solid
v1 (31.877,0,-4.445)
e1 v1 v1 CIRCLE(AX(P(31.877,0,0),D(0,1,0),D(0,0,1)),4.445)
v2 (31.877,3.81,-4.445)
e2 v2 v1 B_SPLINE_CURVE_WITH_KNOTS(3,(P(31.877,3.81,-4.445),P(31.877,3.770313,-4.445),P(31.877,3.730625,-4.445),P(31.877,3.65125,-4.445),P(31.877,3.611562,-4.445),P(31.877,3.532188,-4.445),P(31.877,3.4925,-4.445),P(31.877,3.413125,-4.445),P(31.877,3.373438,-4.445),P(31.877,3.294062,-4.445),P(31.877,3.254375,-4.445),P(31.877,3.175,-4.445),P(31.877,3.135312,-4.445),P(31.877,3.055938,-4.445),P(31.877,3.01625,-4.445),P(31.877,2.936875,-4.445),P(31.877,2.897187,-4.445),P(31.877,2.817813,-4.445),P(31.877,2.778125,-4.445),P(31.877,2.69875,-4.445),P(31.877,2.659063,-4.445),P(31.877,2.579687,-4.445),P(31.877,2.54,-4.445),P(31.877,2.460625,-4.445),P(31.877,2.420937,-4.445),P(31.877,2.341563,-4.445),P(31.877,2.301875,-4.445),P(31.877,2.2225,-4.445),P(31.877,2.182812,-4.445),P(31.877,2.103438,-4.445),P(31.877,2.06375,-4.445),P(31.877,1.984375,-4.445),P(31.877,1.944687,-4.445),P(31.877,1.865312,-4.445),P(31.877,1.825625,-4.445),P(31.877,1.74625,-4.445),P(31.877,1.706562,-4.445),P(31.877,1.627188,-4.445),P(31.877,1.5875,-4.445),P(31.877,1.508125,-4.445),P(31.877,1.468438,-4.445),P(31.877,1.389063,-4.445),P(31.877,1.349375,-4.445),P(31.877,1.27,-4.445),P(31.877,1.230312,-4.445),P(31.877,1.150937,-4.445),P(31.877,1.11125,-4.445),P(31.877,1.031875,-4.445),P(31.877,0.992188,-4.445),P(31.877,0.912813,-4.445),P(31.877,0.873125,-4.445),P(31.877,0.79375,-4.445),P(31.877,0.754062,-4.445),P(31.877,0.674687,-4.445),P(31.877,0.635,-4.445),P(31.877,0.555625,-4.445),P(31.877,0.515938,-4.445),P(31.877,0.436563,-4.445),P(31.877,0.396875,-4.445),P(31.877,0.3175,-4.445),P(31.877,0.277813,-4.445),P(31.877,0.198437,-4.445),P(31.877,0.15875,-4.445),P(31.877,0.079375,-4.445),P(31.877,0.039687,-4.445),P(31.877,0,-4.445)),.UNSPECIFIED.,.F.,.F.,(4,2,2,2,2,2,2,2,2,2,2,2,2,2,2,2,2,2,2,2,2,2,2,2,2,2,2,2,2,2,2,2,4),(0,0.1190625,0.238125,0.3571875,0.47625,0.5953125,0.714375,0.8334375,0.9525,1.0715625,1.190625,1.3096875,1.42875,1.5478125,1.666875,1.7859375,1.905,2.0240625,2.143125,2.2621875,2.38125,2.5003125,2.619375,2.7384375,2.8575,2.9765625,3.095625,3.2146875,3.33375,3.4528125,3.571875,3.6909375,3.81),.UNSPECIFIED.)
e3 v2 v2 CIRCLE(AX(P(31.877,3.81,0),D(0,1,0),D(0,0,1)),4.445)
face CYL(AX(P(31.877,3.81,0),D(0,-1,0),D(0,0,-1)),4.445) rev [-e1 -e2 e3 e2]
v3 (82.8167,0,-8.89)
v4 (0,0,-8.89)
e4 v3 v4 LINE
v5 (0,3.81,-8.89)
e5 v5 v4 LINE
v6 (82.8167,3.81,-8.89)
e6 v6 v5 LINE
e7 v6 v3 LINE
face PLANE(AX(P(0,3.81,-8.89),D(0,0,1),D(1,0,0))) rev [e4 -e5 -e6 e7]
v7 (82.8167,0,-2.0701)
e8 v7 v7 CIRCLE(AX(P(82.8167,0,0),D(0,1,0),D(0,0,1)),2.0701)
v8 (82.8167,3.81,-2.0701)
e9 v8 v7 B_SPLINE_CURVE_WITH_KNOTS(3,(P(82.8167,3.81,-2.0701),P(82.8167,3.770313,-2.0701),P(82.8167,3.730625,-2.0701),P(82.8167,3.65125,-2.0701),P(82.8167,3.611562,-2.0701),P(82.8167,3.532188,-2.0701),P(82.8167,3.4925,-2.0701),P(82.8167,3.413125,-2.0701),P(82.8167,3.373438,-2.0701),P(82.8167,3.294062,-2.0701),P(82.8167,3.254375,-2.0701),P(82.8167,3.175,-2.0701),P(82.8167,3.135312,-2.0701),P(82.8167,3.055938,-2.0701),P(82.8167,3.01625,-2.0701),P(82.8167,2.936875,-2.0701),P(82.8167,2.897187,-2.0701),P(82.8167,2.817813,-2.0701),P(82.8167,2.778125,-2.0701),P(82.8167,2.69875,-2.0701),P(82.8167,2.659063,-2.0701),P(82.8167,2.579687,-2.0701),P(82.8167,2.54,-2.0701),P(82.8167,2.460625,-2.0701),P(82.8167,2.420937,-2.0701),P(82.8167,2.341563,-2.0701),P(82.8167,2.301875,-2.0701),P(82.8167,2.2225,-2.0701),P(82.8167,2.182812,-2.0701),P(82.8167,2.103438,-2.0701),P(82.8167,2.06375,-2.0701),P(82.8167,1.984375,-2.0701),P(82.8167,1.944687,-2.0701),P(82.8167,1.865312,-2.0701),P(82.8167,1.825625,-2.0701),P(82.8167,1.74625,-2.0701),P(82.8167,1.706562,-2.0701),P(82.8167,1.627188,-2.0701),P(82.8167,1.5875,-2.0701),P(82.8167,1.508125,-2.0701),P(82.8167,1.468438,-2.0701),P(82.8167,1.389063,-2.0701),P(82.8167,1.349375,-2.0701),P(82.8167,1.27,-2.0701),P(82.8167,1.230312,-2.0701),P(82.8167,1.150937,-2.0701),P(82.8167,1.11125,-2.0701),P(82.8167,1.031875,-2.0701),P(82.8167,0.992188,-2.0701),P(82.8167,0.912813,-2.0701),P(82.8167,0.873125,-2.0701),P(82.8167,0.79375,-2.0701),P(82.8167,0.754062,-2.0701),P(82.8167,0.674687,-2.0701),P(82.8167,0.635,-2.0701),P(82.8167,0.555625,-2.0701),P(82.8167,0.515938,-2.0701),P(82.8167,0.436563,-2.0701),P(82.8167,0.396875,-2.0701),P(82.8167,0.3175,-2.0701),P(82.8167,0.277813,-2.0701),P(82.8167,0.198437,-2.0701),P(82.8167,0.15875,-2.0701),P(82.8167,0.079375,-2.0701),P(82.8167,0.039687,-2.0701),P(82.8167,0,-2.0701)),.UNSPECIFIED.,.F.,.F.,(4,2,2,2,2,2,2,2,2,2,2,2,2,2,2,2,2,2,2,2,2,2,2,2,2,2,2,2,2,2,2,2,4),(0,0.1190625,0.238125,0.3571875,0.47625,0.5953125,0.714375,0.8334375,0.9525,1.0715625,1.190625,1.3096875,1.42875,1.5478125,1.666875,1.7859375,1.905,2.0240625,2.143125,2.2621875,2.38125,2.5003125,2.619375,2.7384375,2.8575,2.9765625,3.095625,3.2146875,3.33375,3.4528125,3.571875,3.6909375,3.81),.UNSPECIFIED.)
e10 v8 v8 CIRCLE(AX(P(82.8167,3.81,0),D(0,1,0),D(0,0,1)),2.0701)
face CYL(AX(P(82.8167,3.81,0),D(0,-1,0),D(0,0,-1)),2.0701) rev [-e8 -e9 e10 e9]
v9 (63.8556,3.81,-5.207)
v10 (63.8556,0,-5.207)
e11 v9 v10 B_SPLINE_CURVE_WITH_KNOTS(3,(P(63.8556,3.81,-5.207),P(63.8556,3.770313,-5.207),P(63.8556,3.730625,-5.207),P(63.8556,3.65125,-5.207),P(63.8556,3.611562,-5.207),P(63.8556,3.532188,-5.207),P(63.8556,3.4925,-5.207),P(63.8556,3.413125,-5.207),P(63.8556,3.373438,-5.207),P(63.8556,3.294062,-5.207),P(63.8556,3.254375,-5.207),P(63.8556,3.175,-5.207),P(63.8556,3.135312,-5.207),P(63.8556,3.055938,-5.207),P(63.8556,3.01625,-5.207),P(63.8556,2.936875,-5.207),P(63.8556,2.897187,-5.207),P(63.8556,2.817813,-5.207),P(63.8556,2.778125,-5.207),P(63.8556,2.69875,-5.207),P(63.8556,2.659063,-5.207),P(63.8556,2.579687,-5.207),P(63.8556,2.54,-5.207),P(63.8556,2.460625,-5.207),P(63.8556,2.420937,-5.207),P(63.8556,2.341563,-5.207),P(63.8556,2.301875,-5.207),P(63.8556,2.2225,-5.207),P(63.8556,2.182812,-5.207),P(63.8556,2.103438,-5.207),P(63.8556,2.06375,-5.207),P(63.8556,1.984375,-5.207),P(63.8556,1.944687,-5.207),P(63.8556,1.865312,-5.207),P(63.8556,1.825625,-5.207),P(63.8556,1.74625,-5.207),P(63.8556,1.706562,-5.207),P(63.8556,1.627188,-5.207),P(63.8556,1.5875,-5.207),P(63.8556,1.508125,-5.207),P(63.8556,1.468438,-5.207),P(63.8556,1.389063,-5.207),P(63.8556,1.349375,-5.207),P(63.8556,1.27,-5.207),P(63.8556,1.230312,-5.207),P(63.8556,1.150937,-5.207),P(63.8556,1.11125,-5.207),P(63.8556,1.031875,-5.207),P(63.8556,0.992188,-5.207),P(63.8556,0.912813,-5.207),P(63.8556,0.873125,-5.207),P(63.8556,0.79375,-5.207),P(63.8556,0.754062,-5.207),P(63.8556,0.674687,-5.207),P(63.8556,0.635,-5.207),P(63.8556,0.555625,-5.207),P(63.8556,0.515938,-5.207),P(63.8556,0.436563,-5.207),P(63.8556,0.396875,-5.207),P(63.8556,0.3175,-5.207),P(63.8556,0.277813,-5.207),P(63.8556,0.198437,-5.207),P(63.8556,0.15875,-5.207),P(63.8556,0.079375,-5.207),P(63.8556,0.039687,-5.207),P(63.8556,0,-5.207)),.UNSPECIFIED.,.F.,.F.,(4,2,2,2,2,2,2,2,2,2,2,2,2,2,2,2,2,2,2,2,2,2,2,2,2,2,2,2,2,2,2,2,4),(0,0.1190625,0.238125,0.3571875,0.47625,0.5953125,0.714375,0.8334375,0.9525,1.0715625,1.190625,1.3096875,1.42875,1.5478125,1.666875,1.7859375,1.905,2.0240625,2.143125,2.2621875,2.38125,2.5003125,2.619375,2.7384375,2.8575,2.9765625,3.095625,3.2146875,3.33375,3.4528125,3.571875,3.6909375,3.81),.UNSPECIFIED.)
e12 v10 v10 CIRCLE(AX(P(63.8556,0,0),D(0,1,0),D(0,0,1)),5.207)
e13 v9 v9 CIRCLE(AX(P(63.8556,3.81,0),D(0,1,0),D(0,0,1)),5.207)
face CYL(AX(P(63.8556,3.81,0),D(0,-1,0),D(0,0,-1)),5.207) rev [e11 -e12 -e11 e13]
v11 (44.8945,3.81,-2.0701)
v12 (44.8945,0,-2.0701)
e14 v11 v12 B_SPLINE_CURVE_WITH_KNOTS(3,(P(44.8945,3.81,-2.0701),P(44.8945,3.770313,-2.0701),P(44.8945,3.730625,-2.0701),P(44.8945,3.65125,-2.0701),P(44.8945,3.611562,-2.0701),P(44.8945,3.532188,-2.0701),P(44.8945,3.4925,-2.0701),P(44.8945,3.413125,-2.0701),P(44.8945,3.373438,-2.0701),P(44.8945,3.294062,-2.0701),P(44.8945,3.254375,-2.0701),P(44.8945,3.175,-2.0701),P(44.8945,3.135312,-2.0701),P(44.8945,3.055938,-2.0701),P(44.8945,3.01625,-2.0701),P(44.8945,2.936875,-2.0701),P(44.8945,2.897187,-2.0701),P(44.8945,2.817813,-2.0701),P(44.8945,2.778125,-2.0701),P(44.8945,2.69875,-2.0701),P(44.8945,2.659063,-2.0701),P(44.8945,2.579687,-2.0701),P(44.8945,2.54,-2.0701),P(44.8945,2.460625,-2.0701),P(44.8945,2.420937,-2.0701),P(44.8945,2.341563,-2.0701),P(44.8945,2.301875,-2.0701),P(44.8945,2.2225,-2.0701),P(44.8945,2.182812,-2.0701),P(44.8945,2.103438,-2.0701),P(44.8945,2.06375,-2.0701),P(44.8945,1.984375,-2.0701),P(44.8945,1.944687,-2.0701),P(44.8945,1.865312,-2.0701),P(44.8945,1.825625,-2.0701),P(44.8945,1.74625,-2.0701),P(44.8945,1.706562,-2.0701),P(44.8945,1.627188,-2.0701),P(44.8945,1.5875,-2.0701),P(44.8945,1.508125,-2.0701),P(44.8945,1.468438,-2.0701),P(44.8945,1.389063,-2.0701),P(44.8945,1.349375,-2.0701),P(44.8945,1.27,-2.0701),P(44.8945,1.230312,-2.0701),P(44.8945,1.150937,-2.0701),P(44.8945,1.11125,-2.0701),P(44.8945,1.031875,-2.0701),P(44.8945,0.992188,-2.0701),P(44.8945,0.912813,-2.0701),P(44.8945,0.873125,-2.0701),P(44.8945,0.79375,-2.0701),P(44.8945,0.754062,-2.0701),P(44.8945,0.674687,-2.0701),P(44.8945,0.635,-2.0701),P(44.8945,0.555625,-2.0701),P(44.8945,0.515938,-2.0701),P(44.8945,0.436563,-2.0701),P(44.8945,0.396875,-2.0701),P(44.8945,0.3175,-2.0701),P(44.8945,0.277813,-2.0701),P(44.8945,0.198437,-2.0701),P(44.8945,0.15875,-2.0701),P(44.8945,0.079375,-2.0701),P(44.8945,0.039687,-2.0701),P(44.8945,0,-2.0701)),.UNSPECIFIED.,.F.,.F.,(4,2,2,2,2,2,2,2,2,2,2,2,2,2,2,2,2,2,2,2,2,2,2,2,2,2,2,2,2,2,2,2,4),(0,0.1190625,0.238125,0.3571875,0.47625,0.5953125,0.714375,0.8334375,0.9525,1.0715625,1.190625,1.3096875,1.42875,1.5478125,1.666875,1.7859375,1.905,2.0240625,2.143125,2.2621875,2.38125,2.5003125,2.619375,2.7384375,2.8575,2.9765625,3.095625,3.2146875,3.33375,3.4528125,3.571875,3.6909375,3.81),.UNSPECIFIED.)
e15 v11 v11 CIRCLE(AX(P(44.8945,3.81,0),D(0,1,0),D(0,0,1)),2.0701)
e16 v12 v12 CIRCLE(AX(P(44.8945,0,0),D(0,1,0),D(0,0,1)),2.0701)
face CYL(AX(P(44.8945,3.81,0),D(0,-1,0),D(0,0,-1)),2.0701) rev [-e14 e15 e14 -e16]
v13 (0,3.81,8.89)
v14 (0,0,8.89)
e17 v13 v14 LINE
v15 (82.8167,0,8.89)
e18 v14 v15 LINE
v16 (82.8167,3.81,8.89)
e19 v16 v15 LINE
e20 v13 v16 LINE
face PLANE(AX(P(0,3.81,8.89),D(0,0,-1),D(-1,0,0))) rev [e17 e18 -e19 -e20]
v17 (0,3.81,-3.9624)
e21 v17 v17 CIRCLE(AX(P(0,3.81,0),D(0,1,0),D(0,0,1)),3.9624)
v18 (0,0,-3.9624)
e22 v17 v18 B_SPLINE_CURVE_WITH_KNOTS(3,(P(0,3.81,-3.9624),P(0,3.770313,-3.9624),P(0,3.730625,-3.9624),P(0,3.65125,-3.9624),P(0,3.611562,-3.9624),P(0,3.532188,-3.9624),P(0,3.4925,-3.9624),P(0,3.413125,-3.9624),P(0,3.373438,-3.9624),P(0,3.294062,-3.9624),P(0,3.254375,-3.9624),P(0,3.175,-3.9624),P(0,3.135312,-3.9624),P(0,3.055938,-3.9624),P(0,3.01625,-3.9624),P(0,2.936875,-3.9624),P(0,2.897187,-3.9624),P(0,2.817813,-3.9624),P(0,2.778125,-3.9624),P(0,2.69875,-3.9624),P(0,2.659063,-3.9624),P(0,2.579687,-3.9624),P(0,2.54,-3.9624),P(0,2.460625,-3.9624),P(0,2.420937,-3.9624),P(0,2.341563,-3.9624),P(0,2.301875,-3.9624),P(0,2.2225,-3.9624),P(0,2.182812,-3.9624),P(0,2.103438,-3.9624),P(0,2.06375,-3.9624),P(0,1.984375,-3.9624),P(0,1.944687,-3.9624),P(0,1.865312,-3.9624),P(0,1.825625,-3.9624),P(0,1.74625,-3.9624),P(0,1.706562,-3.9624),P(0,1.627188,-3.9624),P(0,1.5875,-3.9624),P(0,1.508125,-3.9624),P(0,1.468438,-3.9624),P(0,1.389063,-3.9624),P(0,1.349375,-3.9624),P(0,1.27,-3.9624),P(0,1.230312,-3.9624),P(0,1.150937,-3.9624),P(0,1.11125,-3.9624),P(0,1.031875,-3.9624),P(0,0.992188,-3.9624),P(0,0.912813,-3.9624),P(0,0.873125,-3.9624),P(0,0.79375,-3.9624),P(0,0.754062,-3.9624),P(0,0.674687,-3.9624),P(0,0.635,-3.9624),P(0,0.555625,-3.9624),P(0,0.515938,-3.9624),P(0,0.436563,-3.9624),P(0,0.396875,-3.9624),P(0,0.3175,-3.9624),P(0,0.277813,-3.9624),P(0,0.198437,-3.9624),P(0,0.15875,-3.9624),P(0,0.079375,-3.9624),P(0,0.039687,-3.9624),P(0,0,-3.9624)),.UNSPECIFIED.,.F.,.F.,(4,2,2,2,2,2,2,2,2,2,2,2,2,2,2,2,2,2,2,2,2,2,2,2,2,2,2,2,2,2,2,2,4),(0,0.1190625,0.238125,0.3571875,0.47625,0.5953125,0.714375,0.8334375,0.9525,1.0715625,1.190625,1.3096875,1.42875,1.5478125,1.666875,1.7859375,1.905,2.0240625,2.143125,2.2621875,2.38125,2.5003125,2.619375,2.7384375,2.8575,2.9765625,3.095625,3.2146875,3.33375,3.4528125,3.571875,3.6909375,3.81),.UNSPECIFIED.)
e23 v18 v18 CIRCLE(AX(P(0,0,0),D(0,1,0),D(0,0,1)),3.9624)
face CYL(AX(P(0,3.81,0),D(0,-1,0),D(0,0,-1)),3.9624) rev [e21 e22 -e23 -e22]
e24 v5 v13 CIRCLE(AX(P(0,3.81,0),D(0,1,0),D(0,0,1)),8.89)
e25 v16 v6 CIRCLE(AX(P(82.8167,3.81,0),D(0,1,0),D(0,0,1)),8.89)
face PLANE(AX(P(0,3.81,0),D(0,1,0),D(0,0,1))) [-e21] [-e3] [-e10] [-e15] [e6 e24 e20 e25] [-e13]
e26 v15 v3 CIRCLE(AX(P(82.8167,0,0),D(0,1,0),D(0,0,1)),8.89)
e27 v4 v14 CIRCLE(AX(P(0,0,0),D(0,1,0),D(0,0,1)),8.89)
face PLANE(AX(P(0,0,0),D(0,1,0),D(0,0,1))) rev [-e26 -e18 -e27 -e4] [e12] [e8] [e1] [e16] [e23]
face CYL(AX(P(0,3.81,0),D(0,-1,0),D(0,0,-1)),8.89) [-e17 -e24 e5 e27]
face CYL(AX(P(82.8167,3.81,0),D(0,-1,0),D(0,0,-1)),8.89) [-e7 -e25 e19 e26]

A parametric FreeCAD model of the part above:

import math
import FreeCAD as App
import Part
import Sketcher
from FreeCAD import Vector
Q = App.Units.Quantity

doc = App.newDocument("Part")
body = doc.addObject("PartDesign::Body", "Body")

sketch1 = doc.addObject("Sketcher::SketchObject", "Sketch")
body.addObject(sketch1)
sketch1.AttachmentSupport = (doc.XZ_Plane, [""])
sketch1.MapMode = "FlatFace"
sketch1.addGeometry(Part.LineSegment(Vector(82.8, -8.9, 0), Vector(0, -8.9, 0)), False)
sketch1.addGeometry(Part.ArcOfCircle(Part.Circle(Vector(0, 0, 0), Vector(0, 0, 1), 8.9), math.radians(90), math.radians(270)), False)
sketch1.addGeometry(Part.LineSegment(Vector(0, 8.9, 0), Vector(82.8, 8.9, 0)), False)
sketch1.addGeometry(Part.ArcOfCircle(Part.Circle(Vector(82.8, 0, 0), Vector(0, 0, 1), 8.9), math.radians(-90), math.radians(90)), False)
sketch1.addGeometry(Part.Circle(Vector(82.8, 0, 0), Vector(0, 0, 1), 2.1), False)
sketch1.addGeometry(Part.Circle(Vector(63.9, 0, 0), Vector(0, 0, 1), 5.2), False)
sketch1.addGeometry(Part.Circle(Vector(44.9, 0, 0), Vector(0, 0, 1), 2.1), False)
sketch1.addGeometry(Part.Circle(Vector(31.9, 0, 0), Vector(0, 0, 1), 4.4), False)
sketch1.addGeometry(Part.Circle(Vector(0, 0, 0), Vector(0, 0, 1), 4), False)
sketch1.addConstraint(Sketcher.Constraint("Tangent", 0, 2, 1, 2))
sketch1.addConstraint(Sketcher.Constraint("Tangent", 1, 1, 2, 1))
sketch1.addConstraint(Sketcher.Constraint("Tangent", 2, 2, 3, 2))
sketch1.addConstraint(Sketcher.Constraint("Tangent", 3, 1, 0, 1))
sketch1.addConstraint(Sketcher.Constraint("Horizontal", 0))
sketch1.addConstraint(Sketcher.Constraint("Horizontal", 2))
sketch1.addConstraint(Sketcher.Constraint("Coincident", 1, 3, -1, 1))
sketch1.addConstraint(Sketcher.Constraint("Coincident", 8, 3, -1, 1))
sketch1.addConstraint(Sketcher.Constraint("Coincident", 4, 3, 3, 3))
sketch1.addConstraint(Sketcher.Constraint("Equal", 4, 6))
sketch1.addConstraint(Sketcher.Constraint("PointOnObject", 5, 3, -1))
sketch1.addConstraint(Sketcher.Constraint("PointOnObject", 6, 3, -1))
sketch1.addConstraint(Sketcher.Constraint("PointOnObject", 7, 3, -1))
sketch1.addConstraint(Sketcher.Constraint("Diameter", 5, Q("0.41 in")))
sketch1.addConstraint(Sketcher.Constraint("Diameter", 7, Q("0.35 in")))
sketch1.addConstraint(Sketcher.Constraint("Radius", 1, Q("0.35 in")))
sketch1.addConstraint(Sketcher.Constraint("Diameter", 4, Q("0.163 in")))
sketch1.addConstraint(Sketcher.Constraint("Diameter", 8, Q("0.312 in")))
sketch1.addConstraint(Sketcher.Constraint("DistanceX", 0, 2, 0, 1, Q("3.2605 in")))
sketch1.addConstraint(Sketcher.Constraint("DistanceX", -1, 1, 5, 3, Q("2.514 in")))
sketch1.addConstraint(Sketcher.Constraint("DistanceX", -1, 1, 7, 3, Q("1.255 in")))
sketch1.addConstraint(Sketcher.Constraint("DistanceX", 6, 3, 3, 3, Q("1.493 in")))
pad1 = doc.addObject("PartDesign::Pad", "Pad")
body.addObject(pad1)
pad1.Profile = sketch1
pad1.Length = Q("0.15 in")
pad1.Reversed = True

doc.recompute()
